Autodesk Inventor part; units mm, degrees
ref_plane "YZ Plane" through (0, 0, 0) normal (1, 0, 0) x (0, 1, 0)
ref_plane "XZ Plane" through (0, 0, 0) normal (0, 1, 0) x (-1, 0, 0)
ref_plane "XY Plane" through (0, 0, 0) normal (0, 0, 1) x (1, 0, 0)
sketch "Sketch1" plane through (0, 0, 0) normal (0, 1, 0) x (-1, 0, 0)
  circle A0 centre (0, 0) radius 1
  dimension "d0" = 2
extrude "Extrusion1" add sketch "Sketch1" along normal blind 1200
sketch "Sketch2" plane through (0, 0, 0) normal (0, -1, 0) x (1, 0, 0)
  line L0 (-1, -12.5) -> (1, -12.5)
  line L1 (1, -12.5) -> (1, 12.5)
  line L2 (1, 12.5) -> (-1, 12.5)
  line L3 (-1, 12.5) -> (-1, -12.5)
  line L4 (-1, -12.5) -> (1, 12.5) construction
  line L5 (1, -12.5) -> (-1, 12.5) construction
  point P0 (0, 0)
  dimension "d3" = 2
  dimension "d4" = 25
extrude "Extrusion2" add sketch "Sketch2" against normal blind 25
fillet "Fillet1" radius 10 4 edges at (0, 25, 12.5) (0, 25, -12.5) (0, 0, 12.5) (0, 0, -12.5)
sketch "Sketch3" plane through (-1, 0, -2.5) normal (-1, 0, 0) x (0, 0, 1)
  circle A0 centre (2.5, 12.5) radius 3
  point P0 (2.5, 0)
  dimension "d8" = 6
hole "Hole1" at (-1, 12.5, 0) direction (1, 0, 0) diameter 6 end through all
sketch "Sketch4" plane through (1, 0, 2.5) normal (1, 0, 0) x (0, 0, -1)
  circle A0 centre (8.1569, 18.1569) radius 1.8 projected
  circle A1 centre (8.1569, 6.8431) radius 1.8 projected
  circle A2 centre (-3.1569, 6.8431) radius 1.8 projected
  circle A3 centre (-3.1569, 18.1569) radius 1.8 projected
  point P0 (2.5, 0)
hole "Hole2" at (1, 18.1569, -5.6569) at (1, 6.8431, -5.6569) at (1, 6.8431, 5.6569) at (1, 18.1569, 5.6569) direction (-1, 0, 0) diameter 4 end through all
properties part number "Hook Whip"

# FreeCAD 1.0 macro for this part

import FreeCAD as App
import Part
import Sketcher


def edges_at(feature, points):
    """Names of the edges that pass closest to the given points."""
    edges = feature.Shape.Edges
    near = lambda p: min(range(len(edges)), key=lambda i: edges[i].distToShape(Part.Vertex(*p))[0])
    return sorted({f"Edge{near(p) + 1}" for p in points})


def add_polygon(sketch, points):
    """Adds a closed chain of lines whose ends are joined by coincident constraints."""
    first, n = sketch.GeometryCount, len(points)
    for a, b in zip(points, points[1:] + points[:1]):
        sketch.addGeometry(Part.LineSegment(App.Vector(*a, 0), App.Vector(*b, 0)), False)
    for i in range(n):
        sketch.addConstraint(Sketcher.Constraint("Coincident", first + i, 2, first + (i + 1) % n, 1))

doc = App.newDocument("Part")
body = doc.addObject("PartDesign::Body", "Body")

# Sketch on XZ plane
sketch1 = body.newObject("Sketcher::SketchObject", "Sketch")
sketch1.AttachmentSupport = (doc.getObject("XZ_Plane"), [""])
sketch1.MapMode = "FlatFace"
sketch1.addGeometry(Part.Circle(App.Vector(0, 0, 0), App.Vector(0, 0, 1), 1), False)
sketch1.addConstraint([
    Sketcher.Constraint("Coincident", 0, 3, -1, 1),
    Sketcher.Constraint("Diameter", 0, 2.0),
])
pad1 = body.newObject("PartDesign::Pad", "Pad")
pad1.Profile = sketch1
pad1.Length = 1200
pad1.Reversed = True

# Sketch on XZ plane
sketch2 = body.newObject("Sketcher::SketchObject", "Sketch001")
sketch2.AttachmentSupport = (doc.getObject("XZ_Plane"), [""])
sketch2.MapMode = "FlatFace"
add_polygon(sketch2, [(-1, 12.5), (-1, -12.5), (1, -12.5), (1, 12.5)])  # lines 0-3
sketch2.addConstraint([
    Sketcher.Constraint("Vertical", 0),
    Sketcher.Constraint("Horizontal", 1),
    Sketcher.Constraint("Vertical", 2),
    Sketcher.Constraint("Horizontal", 3),
    Sketcher.Constraint("Symmetric", 0, 2, 2, 2, -1, 1),
    Sketcher.Constraint("DistanceX", 1, 1, 1, 2, 2.0),
    Sketcher.Constraint("DistanceY", 0, 2, 0, 1, 25.0),
])
pad2 = body.newObject("PartDesign::Pad", "Pad001")
pad2.Profile = sketch2
pad2.Length = 25
pad2.Reversed = True
doc.recompute()

fillet = body.newObject("PartDesign::Fillet", "Fillet")
fillet.Base = (pad2, edges_at(pad2, [
    (0, 25, 12.5),
    (0, 25, -12.5),
    (0, 0, 12.5),
    (0, 0, -12.5),
]))
fillet.Radius = 10

# Sketch on YZ plane
sketch3 = body.newObject("Sketcher::SketchObject", "Sketch002")
sketch3.AttachmentSupport = (doc.getObject("YZ_Plane"), [""])
sketch3.MapMode = "FlatFace"
sketch3.AttachmentOffset = App.Placement(App.Vector(0, 0, -1), App.Rotation())
sketch3.addGeometry(Part.Circle(App.Vector(12.5, 0, 0), App.Vector(0, 0, 1), 3), False)
sketch3.addConstraint([
    Sketcher.Constraint("PointOnObject", 0, 3, -1),
    Sketcher.Constraint("Diameter", 0, 6.0),
    Sketcher.Constraint("DistanceX", -1, 1, 0, 3, 12.5),
])
doc.recompute()
hole = body.newObject("PartDesign::Hole", "Hole")
hole.Profile = sketch3
hole.ThreadType = "None"
hole.Diameter = 6
hole.DepthType = "ThroughAll"
hole.Reversed = True

# Sketch on YZ plane
sketch4 = body.newObject("Sketcher::SketchObject", "Sketch003")
sketch4.AttachmentSupport = (doc.getObject("YZ_Plane"), [""])
sketch4.MapMode = "FlatFace"
sketch4.AttachmentOffset = App.Placement(App.Vector(0, 0, 1), App.Rotation())
sketch4.addGeometry([
    Part.Circle(App.Vector(18.2, -5.7, 0), App.Vector(0, 0, 1), 2),
    Part.Circle(App.Vector(6.8, -5.7, 0), App.Vector(0, 0, 1), 2),
    Part.Circle(App.Vector(6.8, 5.7, 0), App.Vector(0, 0, 1), 2),
    Part.Circle(App.Vector(18.2, 5.7, 0), App.Vector(0, 0, 1), 2),
], False)
sketch4.addConstraint([
    Sketcher.Constraint("Equal", 0, 1),
    Sketcher.Constraint("Equal", 1, 2),
    Sketcher.Constraint("Equal", 2, 3),
    Sketcher.Constraint("Symmetric", 1, 3, 2, 3, -1),
    Sketcher.Constraint("Symmetric", 0, 3, 3, 3, -1),
    Sketcher.Constraint("Horizontal", 0, 3, 1, 3),
    Sketcher.Constraint("Diameter", 0, 4.0),
    Sketcher.Constraint("DistanceX", -1, 1, 0, 3, 18.157),
    Sketcher.Constraint("DistanceY", 0, 3, -1, 1, 5.657),
    Sketcher.Constraint("DistanceX", -1, 1, 1, 3, 6.843),
])
doc.recompute()
hole2 = body.newObject("PartDesign::Hole", "Hole001")
hole2.Profile = sketch4
hole2.ThreadType = "None"
hole2.Diameter = 4
hole2.DepthType = "ThroughAll"

doc.recompute()
